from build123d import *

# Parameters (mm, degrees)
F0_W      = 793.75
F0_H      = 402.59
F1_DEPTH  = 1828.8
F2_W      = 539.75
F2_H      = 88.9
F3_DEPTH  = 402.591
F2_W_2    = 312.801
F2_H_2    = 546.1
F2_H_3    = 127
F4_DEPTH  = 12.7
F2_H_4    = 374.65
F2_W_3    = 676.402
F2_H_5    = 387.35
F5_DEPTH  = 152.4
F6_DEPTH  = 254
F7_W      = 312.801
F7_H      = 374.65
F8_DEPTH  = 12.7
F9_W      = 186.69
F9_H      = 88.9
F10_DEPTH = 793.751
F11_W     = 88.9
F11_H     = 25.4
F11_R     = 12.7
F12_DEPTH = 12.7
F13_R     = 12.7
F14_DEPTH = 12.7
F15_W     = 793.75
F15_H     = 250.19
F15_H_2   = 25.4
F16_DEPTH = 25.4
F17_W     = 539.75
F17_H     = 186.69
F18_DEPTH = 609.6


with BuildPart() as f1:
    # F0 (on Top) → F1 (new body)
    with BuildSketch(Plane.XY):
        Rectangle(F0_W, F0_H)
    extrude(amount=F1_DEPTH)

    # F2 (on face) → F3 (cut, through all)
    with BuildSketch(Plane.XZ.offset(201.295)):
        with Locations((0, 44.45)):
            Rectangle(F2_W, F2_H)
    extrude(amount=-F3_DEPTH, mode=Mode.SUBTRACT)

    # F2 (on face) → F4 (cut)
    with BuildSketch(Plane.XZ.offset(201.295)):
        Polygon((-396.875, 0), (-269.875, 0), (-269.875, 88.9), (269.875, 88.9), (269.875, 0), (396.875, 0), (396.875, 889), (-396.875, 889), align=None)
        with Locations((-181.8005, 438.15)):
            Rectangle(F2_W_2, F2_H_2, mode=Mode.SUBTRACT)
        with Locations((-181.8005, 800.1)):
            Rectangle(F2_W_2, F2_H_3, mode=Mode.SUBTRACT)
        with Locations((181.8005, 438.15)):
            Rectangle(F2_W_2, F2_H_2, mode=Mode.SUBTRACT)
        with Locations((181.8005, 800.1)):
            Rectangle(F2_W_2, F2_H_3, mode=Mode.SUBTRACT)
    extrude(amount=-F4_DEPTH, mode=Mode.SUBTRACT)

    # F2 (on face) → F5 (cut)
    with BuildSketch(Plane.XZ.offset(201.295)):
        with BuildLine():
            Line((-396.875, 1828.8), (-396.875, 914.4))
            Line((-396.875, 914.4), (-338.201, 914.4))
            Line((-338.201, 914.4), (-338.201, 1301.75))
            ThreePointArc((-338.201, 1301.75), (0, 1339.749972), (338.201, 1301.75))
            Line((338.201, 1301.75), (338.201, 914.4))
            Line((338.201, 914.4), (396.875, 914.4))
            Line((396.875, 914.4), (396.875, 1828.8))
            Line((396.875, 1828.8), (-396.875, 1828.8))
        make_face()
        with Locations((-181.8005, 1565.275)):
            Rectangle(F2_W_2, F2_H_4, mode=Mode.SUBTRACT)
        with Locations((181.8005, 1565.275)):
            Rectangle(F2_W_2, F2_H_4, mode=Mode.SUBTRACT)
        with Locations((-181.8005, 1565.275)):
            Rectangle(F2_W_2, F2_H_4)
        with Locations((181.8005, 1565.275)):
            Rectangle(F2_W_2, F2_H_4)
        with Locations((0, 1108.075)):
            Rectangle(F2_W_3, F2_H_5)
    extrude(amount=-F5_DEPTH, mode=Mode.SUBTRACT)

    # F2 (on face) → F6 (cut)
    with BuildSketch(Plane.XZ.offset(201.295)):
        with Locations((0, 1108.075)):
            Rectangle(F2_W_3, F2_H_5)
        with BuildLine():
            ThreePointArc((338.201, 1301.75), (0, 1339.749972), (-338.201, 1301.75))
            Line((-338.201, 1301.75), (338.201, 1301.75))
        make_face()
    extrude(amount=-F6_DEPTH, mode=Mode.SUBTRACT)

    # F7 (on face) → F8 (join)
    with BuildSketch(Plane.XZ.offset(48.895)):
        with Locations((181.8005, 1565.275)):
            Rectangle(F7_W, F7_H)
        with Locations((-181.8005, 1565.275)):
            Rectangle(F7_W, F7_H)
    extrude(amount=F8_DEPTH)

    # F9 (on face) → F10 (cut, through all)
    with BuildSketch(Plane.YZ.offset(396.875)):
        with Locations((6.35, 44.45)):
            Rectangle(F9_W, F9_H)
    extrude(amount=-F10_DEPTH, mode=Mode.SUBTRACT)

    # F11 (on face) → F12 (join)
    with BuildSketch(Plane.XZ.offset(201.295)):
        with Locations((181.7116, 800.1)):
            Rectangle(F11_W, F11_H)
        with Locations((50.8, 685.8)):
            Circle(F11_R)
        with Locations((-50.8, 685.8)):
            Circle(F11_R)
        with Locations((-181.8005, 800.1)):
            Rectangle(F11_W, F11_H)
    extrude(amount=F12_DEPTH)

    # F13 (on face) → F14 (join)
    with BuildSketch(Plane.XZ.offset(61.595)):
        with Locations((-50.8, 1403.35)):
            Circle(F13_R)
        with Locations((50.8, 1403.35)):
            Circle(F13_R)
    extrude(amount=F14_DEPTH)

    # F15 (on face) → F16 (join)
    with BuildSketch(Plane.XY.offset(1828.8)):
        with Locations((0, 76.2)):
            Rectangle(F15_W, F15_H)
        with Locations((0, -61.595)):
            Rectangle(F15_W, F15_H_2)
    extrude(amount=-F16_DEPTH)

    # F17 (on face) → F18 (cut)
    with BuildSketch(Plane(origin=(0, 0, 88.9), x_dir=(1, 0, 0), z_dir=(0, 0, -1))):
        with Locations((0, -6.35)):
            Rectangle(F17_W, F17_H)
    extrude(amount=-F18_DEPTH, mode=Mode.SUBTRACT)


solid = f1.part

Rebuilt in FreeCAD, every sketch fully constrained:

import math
import FreeCAD as App
import Part
import Sketcher
from FreeCAD import Vector
Q = App.Units.Quantity

doc = App.newDocument("Part")
body = doc.addObject("PartDesign::Body", "Body")

# Sketch on XY plane
sketch1 = body.newObject("Sketcher::SketchObject", "Sketch")
sketch1.AttachmentSupport = (doc.getObject("XY_Plane"), [""])
sketch1.MapMode = "FlatFace"
sketch1.addGeometry([
    Part.LineSegment(Vector(-397, 201, 0), Vector(-397, -201, 0)),
    Part.LineSegment(Vector(-397, -201, 0), Vector(397, -201, 0)),
    Part.LineSegment(Vector(397, -201, 0), Vector(397, 201, 0)),
    Part.LineSegment(Vector(397, 201, 0), Vector(-397, 201, 0)),
], False)
sketch1.addConstraint([
    Sketcher.Constraint("Coincident", 0, 2, 1, 1),
    Sketcher.Constraint("Coincident", 1, 2, 2, 1),
    Sketcher.Constraint("Coincident", 2, 2, 3, 1),
    Sketcher.Constraint("Coincident", 3, 2, 0, 1),
    Sketcher.Constraint("Vertical", 0),
    Sketcher.Constraint("Horizontal", 1),
    Sketcher.Constraint("Vertical", 2),
    Sketcher.Constraint("Horizontal", 3),
    Sketcher.Constraint("Symmetric", 0, 2, 2, 2, -1, 1),
    Sketcher.Constraint("DistanceX", 1, 1, 1, 2, Q("31.25 in")),
    Sketcher.Constraint("DistanceY", 0, 2, 0, 1, Q("15.85 in")),
])
pad1 = body.newObject("PartDesign::Pad", "Pad")
pad1.Profile = sketch1
pad1.Length = Q("72 in")

# Sketch on XZ plane
sketch2 = body.newObject("Sketcher::SketchObject", "Sketch001")
sketch2.AttachmentSupport = (doc.getObject("XZ_Plane"), [""])
sketch2.MapMode = "FlatFace"
sketch2.AttachmentOffset = App.Placement(Vector(0, 0, 7.925 * 25.4), App.Rotation())
sketch2.addGeometry([
    Part.LineSegment(Vector(-270, 89, 0), Vector(-270, 0, 0)),
    Part.LineSegment(Vector(-270, 0, 0), Vector(270, 0, 0)),
    Part.LineSegment(Vector(270, 0, 0), Vector(270, 89, 0)),
    Part.LineSegment(Vector(270, 89, 0), Vector(-270, 89, 0)),
], False)
sketch2.addConstraint([
    Sketcher.Constraint("Coincident", 0, 2, 1, 1),
    Sketcher.Constraint("Coincident", 1, 2, 2, 1),
    Sketcher.Constraint("Coincident", 2, 2, 3, 1),
    Sketcher.Constraint("Coincident", 3, 2, 0, 1),
    Sketcher.Constraint("Vertical", 0),
    Sketcher.Constraint("Horizontal", 1),
    Sketcher.Constraint("Vertical", 2),
    Sketcher.Constraint("Horizontal", 3),
    Sketcher.Constraint("Symmetric", 0, 2, 1, 2, -1, 1),
    Sketcher.Constraint("DistanceY", 0, 2, 0, 1, Q("3.5 in")),
    Sketcher.Constraint("DistanceX", 1, 1, 1, 2, Q("21.25 in")),
])
pocket1 = body.newObject("PartDesign::Pocket", "Pocket")
pocket1.Profile = sketch2
pocket1.Type = "ThroughAll"

# Sketch on XZ plane
sketch3 = body.newObject("Sketcher::SketchObject", "Sketch002")
sketch3.AttachmentSupport = (doc.getObject("XZ_Plane"), [""])
sketch3.MapMode = "FlatFace"
sketch3.AttachmentOffset = App.Placement(Vector(0, 0, 7.925 * 25.4), App.Rotation())
sketch3.addGeometry([
    Part.LineSegment(Vector(-397, 0, 0), Vector(-270, 0, 0)),  # 0
    Part.LineSegment(Vector(-270, 0, 0), Vector(-270, 89, 0)),  # 1
    Part.LineSegment(Vector(-270, 89, 0), Vector(270, 89, 0)),  # 2
    Part.LineSegment(Vector(270, 89, 0), Vector(270, 0, 0)),  # 3
    Part.LineSegment(Vector(270, 0, 0), Vector(397, 0, 0)),  # 4
    Part.LineSegment(Vector(397, 0, 0), Vector(397, 889, 0)),  # 5
    Part.LineSegment(Vector(397, 889, 0), Vector(-397, 889, 0)),  # 6
    Part.LineSegment(Vector(-397, 889, 0), Vector(-397, 0, 0)),  # 7
    Part.LineSegment(Vector(-25, 165, 0), Vector(-338, 165, 0)),  # 8
    Part.LineSegment(Vector(-338, 165, 0), Vector(-338, 711, 0)),  # 9
    Part.LineSegment(Vector(-338, 711, 0), Vector(-25, 711, 0)),  # 10
    Part.LineSegment(Vector(-25, 711, 0), Vector(-25, 165, 0)),  # 11
    Part.LineSegment(Vector(338, 165, 0), Vector(25, 165, 0)),  # 12
    Part.LineSegment(Vector(25, 165, 0), Vector(25, 711, 0)),  # 13
    Part.LineSegment(Vector(25, 711, 0), Vector(338, 711, 0)),  # 14
    Part.LineSegment(Vector(338, 711, 0), Vector(338, 165, 0)),  # 15
    Part.LineSegment(Vector(-25, 737, 0), Vector(-338, 737, 0)),  # 16
    Part.LineSegment(Vector(-338, 737, 0), Vector(-338, 864, 0)),  # 17
    Part.LineSegment(Vector(-338, 864, 0), Vector(-25, 864, 0)),  # 18
    Part.LineSegment(Vector(-25, 864, 0), Vector(-25, 737, 0)),  # 19
    Part.LineSegment(Vector(338, 737, 0), Vector(25, 737, 0)),  # 20
    Part.LineSegment(Vector(25, 737, 0), Vector(25, 864, 0)),  # 21
    Part.LineSegment(Vector(25, 864, 0), Vector(338, 864, 0)),  # 22
    Part.LineSegment(Vector(338, 864, 0), Vector(338, 737, 0)),  # 23
], False)
sketch3.addConstraint([
    Sketcher.Constraint("Coincident", 0, 2, 1, 1),
    Sketcher.Constraint("Coincident", 1, 2, 2, 1),
    Sketcher.Constraint("Coincident", 2, 2, 3, 1),
    Sketcher.Constraint("Coincident", 3, 2, 4, 1),
    Sketcher.Constraint("Coincident", 4, 2, 5, 1),
    Sketcher.Constraint("Coincident", 5, 2, 6, 1),
    Sketcher.Constraint("Coincident", 6, 2, 7, 1),
    Sketcher.Constraint("Coincident", 7, 2, 0, 1),
    Sketcher.Constraint("Coincident", 8, 2, 9, 1),
    Sketcher.Constraint("Coincident", 9, 2, 10, 1),
    Sketcher.Constraint("Coincident", 10, 2, 11, 1),
    Sketcher.Constraint("Coincident", 11, 2, 8, 1),
    Sketcher.Constraint("Coincident", 12, 2, 13, 1),
    Sketcher.Constraint("Coincident", 13, 2, 14, 1),
    Sketcher.Constraint("Coincident", 14, 2, 15, 1),
    Sketcher.Constraint("Coincident", 15, 2, 12, 1),
    Sketcher.Constraint("Coincident", 16, 2, 17, 1),
    Sketcher.Constraint("Coincident", 17, 2, 18, 1),
    Sketcher.Constraint("Coincident", 18, 2, 19, 1),
    Sketcher.Constraint("Coincident", 19, 2, 16, 1),
    Sketcher.Constraint("Coincident", 20, 2, 21, 1),
    Sketcher.Constraint("Coincident", 21, 2, 22, 1),
    Sketcher.Constraint("Coincident", 22, 2, 23, 1),
    Sketcher.Constraint("Coincident", 23, 2, 20, 1),
    Sketcher.Constraint("Horizontal", 0),
    Sketcher.Constraint("Vertical", 1),
    Sketcher.Constraint("Horizontal", 2),
    Sketcher.Constraint("Vertical", 3),
    Sketcher.Constraint("Horizontal", 4),
    Sketcher.Constraint("Vertical", 5),
    Sketcher.Constraint("Horizontal", 6),
    Sketcher.Constraint("Vertical", 7),
    Sketcher.Constraint("Horizontal", 8),
    Sketcher.Constraint("Vertical", 9),
    Sketcher.Constraint("Horizontal", 10),
    Sketcher.Constraint("Vertical", 11),
    Sketcher.Constraint("Horizontal", 12),
    Sketcher.Constraint("Vertical", 13),
    Sketcher.Constraint("Horizontal", 14),
    Sketcher.Constraint("Vertical", 15),
    Sketcher.Constraint("Horizontal", 16),
    Sketcher.Constraint("Vertical", 17),
    Sketcher.Constraint("Horizontal", 18),
    Sketcher.Constraint("Vertical", 19),
    Sketcher.Constraint("Horizontal", 20),
    Sketcher.Constraint("Vertical", 21),
    Sketcher.Constraint("Horizontal", 22),
    Sketcher.Constraint("Vertical", 23),
    Sketcher.Constraint("Symmetric", 0, 2, 3, 2, -1, 1),
    Sketcher.Constraint("Symmetric", 4, 2, 7, 2, -2),
    Sketcher.Constraint("Symmetric", 11, 2, 12, 2, -2),
    Sketcher.Constraint("Symmetric", 9, 2, 14, 2, -2),
    Sketcher.Constraint("Symmetric", 19, 2, 20, 2, -2),
    Sketcher.Constraint("Symmetric", 17, 2, 22, 2, -2),
    Sketcher.Constraint("Vertical", 9, 2, 16, 2),
    Sketcher.Constraint("Vertical", 11, 2, 18, 2),
    Sketcher.Constraint("Equal", 4, 17),
    Sketcher.Constraint("DistanceX", 0, 1, 0, 2, Q("5 in")),
    Sketcher.Constraint("DistanceY", 5, 1, 5, 2, Q("35 in")),
    Sketcher.Constraint("DistanceY", 1, 1, 1, 2, Q("3.5 in")),
    Sketcher.Constraint("DistanceY", 9, 1, 9, 2, Q("21.5 in")),
    Sketcher.Constraint("DistanceY", -1, 1, 9, 2, Q("28 in")),
    Sketcher.Constraint("DistanceX", 10, 2, -1, 1, Q("1 in")),
    Sketcher.Constraint("DistanceY", -1, 1, 16, 2, Q("29 in")),
    Sketcher.Constraint("DistanceX", 2, 1, 2, 2, Q("21.25 in")),
    Sketcher.Constraint("DistanceX", 8, 2, 8, 1, Q("12.315 in")),
])
pocket2 = body.newObject("PartDesign::Pocket", "Pocket001")
pocket2.Profile = sketch3
pocket2.Length = Q("0.5 in")

# Sketch on XZ plane
sketch4 = body.newObject("Sketcher::SketchObject", "Sketch003")
sketch4.AttachmentSupport = (doc.getObject("XZ_Plane"), [""])
sketch4.MapMode = "FlatFace"
sketch4.AttachmentOffset = App.Placement(Vector(0, 0, 7.925 * 25.4), App.Rotation())
sketch4.addGeometry([
    Part.LineSegment(Vector(-397, 1829, 0), Vector(-397, 914, 0)),  # 0
    Part.LineSegment(Vector(-397, 914, 0), Vector(397, 914, 0)),  # 1
    Part.LineSegment(Vector(397, 914, 0), Vector(397, 1829, 0)),  # 2
    Part.LineSegment(Vector(397, 1829, 0), Vector(-397, 1829, 0)),  # 3
    Part.ArcOfCircle(Part.Circle(Vector(0, -184, 0), Vector(0, 0, 1), 1524), math.radians(77), math.radians(103)),  # 4
    Part.LineSegment(Vector(338, 1302, 0), Vector(-338, 1302, 0)),  # 5
], False)
sketch4.addConstraint([
    Sketcher.Constraint("Coincident", 0, 2, 1, 1),
    Sketcher.Constraint("Coincident", 1, 2, 2, 1),
    Sketcher.Constraint("Coincident", 2, 2, 3, 1),
    Sketcher.Constraint("Coincident", 3, 2, 0, 1),
    Sketcher.Constraint("Coincident", 4, 1, 5, 1),
    Sketcher.Constraint("Coincident", 5, 2, 4, 2),
    Sketcher.Constraint("Vertical", 0),
    Sketcher.Constraint("Horizontal", 1),
    Sketcher.Constraint("Vertical", 2),
    Sketcher.Constraint("Horizontal", 3),
    Sketcher.Constraint("Horizontal", 5),
    Sketcher.Constraint("PointOnObject", 4, 3, -2),
    Sketcher.Constraint("Radius", 4, Q("59.9999998 in")),
    Sketcher.Constraint("DistanceY", 0, 2, 0, 1, Q("36 in")),
    Sketcher.Constraint("DistanceY", -1, 1, 0, 2, Q("36 in")),
    Sketcher.Constraint("DistanceX", 1, 1, 1, 2, Q("31.25 in")),
    Sketcher.Constraint("DistanceX", 5, 2, 5, 1, Q("26.63 in")),
    Sketcher.Constraint("DistanceY", -1, 1, 5, 2, Q("51.25 in")),
    Sketcher.Constraint("DistanceX", 0, 2, 5, 2, Q("2.31 in")),
])
pocket3 = body.newObject("PartDesign::Pocket", "Pocket002")
pocket3.Profile = sketch4
pocket3.Length = Q("6 in")

# Sketch on XZ plane
sketch5 = body.newObject("Sketcher::SketchObject", "Sketch004")
sketch5.AttachmentSupport = (doc.getObject("XZ_Plane"), [""])
sketch5.MapMode = "FlatFace"
sketch5.AttachmentOffset = App.Placement(Vector(0, 0, 7.925 * 25.4), App.Rotation())
sketch5.addGeometry([
    Part.LineSegment(Vector(-338, 1302, 0), Vector(-338, 914, 0)),
    Part.LineSegment(Vector(-338, 914, 0), Vector(338, 914, 0)),
    Part.LineSegment(Vector(338, 914, 0), Vector(338, 1302, 0)),
    Part.ArcOfCircle(Part.Circle(Vector(0, -184, 0), Vector(0, 0, 1), 1524), math.radians(77), math.radians(103)),
], False)
sketch5.addConstraint([
    Sketcher.Constraint("Coincident", 0, 2, 1, 1),
    Sketcher.Constraint("Coincident", 1, 2, 2, 1),
    Sketcher.Constraint("Coincident", 2, 2, 3, 1),
    Sketcher.Constraint("Coincident", 3, 2, 0, 1),
    Sketcher.Constraint("Vertical", 0),
    Sketcher.Constraint("Horizontal", 1),
    Sketcher.Constraint("Vertical", 2),
    Sketcher.Constraint("PointOnObject", 3, 3, -2),
    Sketcher.Constraint("Equal", 0, 2),
    Sketcher.Constraint("Radius", 3, Q("59.9999998 in")),
    Sketcher.Constraint("DistanceY", -1, 1, 0, 2, Q("36 in")),
    Sketcher.Constraint("DistanceX", 1, 1, 1, 2, Q("26.63 in")),
    Sketcher.Constraint("DistanceY", 0, 2, 0, 1, Q("15.25 in")),
])
pocket4 = body.newObject("PartDesign::Pocket", "Pocket003")
pocket4.Profile = sketch5
pocket4.Length = Q("10 in")

# Sketch on XZ plane
sketch6 = body.newObject("Sketcher::SketchObject", "Sketch005")
sketch6.AttachmentSupport = (doc.getObject("XZ_Plane"), [""])
sketch6.MapMode = "FlatFace"
sketch6.AttachmentOffset = App.Placement(Vector(0, 0, 1.925 * 25.4), App.Rotation())
sketch6.addGeometry([
    Part.LineSegment(Vector(25, 1753, 0), Vector(25, 1378, 0)),  # 0
    Part.LineSegment(Vector(25, 1378, 0), Vector(338, 1378, 0)),  # 1
    Part.LineSegment(Vector(338, 1378, 0), Vector(338, 1753, 0)),  # 2
    Part.LineSegment(Vector(338, 1753, 0), Vector(25, 1753, 0)),  # 3
    Part.LineSegment(Vector(-338, 1753, 0), Vector(-338, 1378, 0)),  # 4
    Part.LineSegment(Vector(-338, 1378, 0), Vector(-25, 1378, 0)),  # 5
    Part.LineSegment(Vector(-25, 1378, 0), Vector(-25, 1753, 0)),  # 6
    Part.LineSegment(Vector(-25, 1753, 0), Vector(-338, 1753, 0)),  # 7
], False)
sketch6.addConstraint([
    Sketcher.Constraint("Coincident", 0, 2, 1, 1),
    Sketcher.Constraint("Coincident", 1, 2, 2, 1),
    Sketcher.Constraint("Coincident", 2, 2, 3, 1),
    Sketcher.Constraint("Coincident", 3, 2, 0, 1),
    Sketcher.Constraint("Coincident", 4, 2, 5, 1),
    Sketcher.Constraint("Coincident", 5, 2, 6, 1),
    Sketcher.Constraint("Coincident", 6, 2, 7, 1),
    Sketcher.Constraint("Coincident", 7, 2, 4, 1),
    Sketcher.Constraint("Vertical", 0),
    Sketcher.Constraint("Horizontal", 1),
    Sketcher.Constraint("Vertical", 2),
    Sketcher.Constraint("Horizontal", 3),
    Sketcher.Constraint("Vertical", 4),
    Sketcher.Constraint("Horizontal", 5),
    Sketcher.Constraint("Vertical", 6),
    Sketcher.Constraint("Horizontal", 7),
    Sketcher.Constraint("Symmetric", 1, 2, 4, 2, -2),
    Sketcher.Constraint("Symmetric", 3, 2, 6, 2, -2),
    Sketcher.Constraint("DistanceX", -1, 1, 0, 2, Q("1 in")),
    Sketcher.Constraint("DistanceY", -1, 1, 2, 2, Q("69 in")),
    Sketcher.Constraint("DistanceY", 0, 2, 0, 1, Q("14.75 in")),
    Sketcher.Constraint("DistanceX", 1, 1, 1, 2, Q("12.315 in")),
])
pad2 = body.newObject("PartDesign::Pad", "Pad001")
pad2.Profile = sketch6
pad2.Length = Q("0.5 in")

# Sketch on YZ plane
sketch7 = body.newObject("Sketcher::SketchObject", "Sketch006")
sketch7.AttachmentSupport = (doc.getObject("YZ_Plane"), [""])
sketch7.MapMode = "FlatFace"
sketch7.AttachmentOffset = App.Placement(Vector(0, 0, 15.625 * 25.4), App.Rotation())
sketch7.addGeometry([
    Part.LineSegment(Vector(-87, 89, 0), Vector(-87, 0, 0)),
    Part.LineSegment(Vector(-87, 0, 0), Vector(100, 0, 0)),
    Part.LineSegment(Vector(100, 0, 0), Vector(100, 89, 0)),
    Part.LineSegment(Vector(100, 89, 0), Vector(-87, 89, 0)),
], False)
sketch7.addConstraint([
    Sketcher.Constraint("Coincident", 0, 2, 1, 1),
    Sketcher.Constraint("Coincident", 1, 2, 2, 1),
    Sketcher.Constraint("Coincident", 2, 2, 3, 1),
    Sketcher.Constraint("Coincident", 3, 2, 0, 1),
    Sketcher.Constraint("Vertical", 0),
    Sketcher.Constraint("Horizontal", 1),
    Sketcher.Constraint("Vertical", 2),
    Sketcher.Constraint("Horizontal", 3),
    Sketcher.Constraint("PointOnObject", 0, 2, -1),
    Sketcher.Constraint("DistanceY", 0, 2, 0, 1, Q("3.5 in")),
    Sketcher.Constraint("DistanceX", 1, 1, 1, 2, Q("7.35 in")),
    Sketcher.Constraint("DistanceX", 0, 2, -1, 1, Q("3.425 in")),
])
pocket5 = body.newObject("PartDesign::Pocket", "Pocket004")
pocket5.Profile = sketch7
pocket5.Type = "ThroughAll"

# Sketch on XZ plane
sketch8 = body.newObject("Sketcher::SketchObject", "Sketch007")
sketch8.AttachmentSupport = (doc.getObject("XZ_Plane"), [""])
sketch8.MapMode = "FlatFace"
sketch8.AttachmentOffset = App.Placement(Vector(0, 0, 7.925 * 25.4), App.Rotation())
sketch8.addGeometry([
    Part.LineSegment(Vector(137, 813, 0), Vector(137, 787, 0)),  # 0
    Part.LineSegment(Vector(137, 787, 0), Vector(226, 787, 0)),  # 1
    Part.LineSegment(Vector(226, 787, 0), Vector(226, 813, 0)),  # 2
    Part.LineSegment(Vector(226, 813, 0), Vector(137, 813, 0)),  # 3
    Part.Circle(Vector(51, 686, 0), Vector(0, 0, 1), 13),  # 4
    Part.Circle(Vector(-51, 686, 0), Vector(0, 0, 1), 13),  # 5
    Part.LineSegment(Vector(-226, 813, 0), Vector(-226, 787, 0)),  # 6
    Part.LineSegment(Vector(-226, 787, 0), Vector(-137, 787, 0)),  # 7
    Part.LineSegment(Vector(-137, 787, 0), Vector(-137, 813, 0)),  # 8
    Part.LineSegment(Vector(-137, 813, 0), Vector(-226, 813, 0)),  # 9
], False)
sketch8.addConstraint([
    Sketcher.Constraint("Coincident", 0, 2, 1, 1),
    Sketcher.Constraint("Coincident", 1, 2, 2, 1),
    Sketcher.Constraint("Coincident", 2, 2, 3, 1),
    Sketcher.Constraint("Coincident", 3, 2, 0, 1),
    Sketcher.Constraint("Coincident", 6, 2, 7, 1),
    Sketcher.Constraint("Coincident", 7, 2, 8, 1),
    Sketcher.Constraint("Coincident", 8, 2, 9, 1),
    Sketcher.Constraint("Coincident", 9, 2, 6, 1),
    Sketcher.Constraint("Vertical", 0),
    Sketcher.Constraint("Horizontal", 1),
    Sketcher.Constraint("Vertical", 2),
    Sketcher.Constraint("Horizontal", 3),
    Sketcher.Constraint("Vertical", 6),
    Sketcher.Constraint("Horizontal", 7),
    Sketcher.Constraint("Vertical", 8),
    Sketcher.Constraint("Horizontal", 9),
    Sketcher.Constraint("Equal", 4, 5),
    Sketcher.Constraint("Symmetric", 4, 3, 5, 3, -2),
    Sketcher.Constraint("Horizontal", 1, 2, 6, 2),
    Sketcher.Constraint("Horizontal", 3, 2, 8, 2),
    Sketcher.Constraint("Equal", 3, 7),
    Sketcher.Constraint("Diameter", 4, Q("1 in")),
    Sketcher.Constraint("DistanceY", 0, 2, 0, 1, Q("1 in")),
    Sketcher.Constraint("DistanceX", 1, 1, 1, 2, Q("3.5 in")),
    Sketcher.Constraint("DistanceX", -1, 1, 4, 3, Q("2 in")),
    Sketcher.Constraint("DistanceY", -1, 1, 4, 3, Q("27 in")),
    Sketcher.Constraint("DistanceY", -1, 1, 0, 2, Q("31 in")),
    Sketcher.Constraint("DistanceX", -1, 1, 0, 2, Q("5.404 in")),
    Sketcher.Constraint("DistanceX", 6, 2, -1, 1, Q("8.9075 in")),
])
pad3 = body.newObject("PartDesign::Pad", "Pad002")
pad3.Profile = sketch8
pad3.Length = Q("0.5 in")

# Sketch on XZ plane
sketch9 = body.newObject("Sketcher::SketchObject", "Sketch008")
sketch9.AttachmentSupport = (doc.getObject("XZ_Plane"), [""])
sketch9.MapMode = "FlatFace"
sketch9.AttachmentOffset = App.Placement(Vector(0, 0, 2.425 * 25.4), App.Rotation())
sketch9.addGeometry([
    Part.Circle(Vector(-51, 1403, 0), Vector(0, 0, 1), 13),
    Part.Circle(Vector(51, 1403, 0), Vector(0, 0, 1), 13),
], False)
sketch9.addConstraint([
    Sketcher.Constraint("Equal", 0, 1),
    Sketcher.Constraint("Symmetric", 0, 3, 1, 3, -2),
    Sketcher.Constraint("Diameter", 0, Q("1 in")),
    Sketcher.Constraint("DistanceX", 0, 3, -1, 1, Q("2 in")),
    Sketcher.Constraint("DistanceY", -1, 1, 0, 3, Q("55.25 in")),
])
pad4 = body.newObject("PartDesign::Pad", "Pad003")
pad4.Profile = sketch9
pad4.Length = Q("0.5 in")

# Sketch on XY plane
sketch10 = body.newObject("Sketcher::SketchObject", "Sketch009")
sketch10.AttachmentSupport = (doc.getObject("XY_Plane"), [""])
sketch10.MapMode = "FlatFace"
sketch10.AttachmentOffset = App.Placement(Vector(0, 0, 72 * 25.4), App.Rotation())
sketch10.addGeometry([
    Part.LineSegment(Vector(-397, 201, 0), Vector(-397, -74, 0)),
    Part.LineSegment(Vector(-397, -74, 0), Vector(397, -74, 0)),
    Part.LineSegment(Vector(397, -74, 0), Vector(397, 201, 0)),
    Part.LineSegment(Vector(397, 201, 0), Vector(-397, 201, 0)),
], False)
sketch10.addConstraint([
    Sketcher.Constraint("Coincident", 0, 2, 1, 1),
    Sketcher.Constraint("Coincident", 1, 2, 2, 1),
    Sketcher.Constraint("Coincident", 2, 2, 3, 1),
    Sketcher.Constraint("Coincident", 3, 2, 0, 1),
    Sketcher.Constraint("Vertical", 0),
    Sketcher.Constraint("Horizontal", 1),
    Sketcher.Constraint("Vertical", 2),
    Sketcher.Constraint("Horizontal", 3),
    Sketcher.Constraint("DistanceX", 1, 1, 1, 2, Q("31.25 in")),
    Sketcher.Constraint("DistanceY", 0, 2, 0, 1, Q("10.85 in")),
    Sketcher.Constraint("DistanceX", 0, 2, -1, 1, Q("15.625 in")),
    Sketcher.Constraint("DistanceY", 0, 2, -1, 1, Q("2.925 in")),
])
pad5 = body.newObject("PartDesign::Pad", "Pad004")
pad5.Profile = sketch10
pad5.Length = Q("1 in")
pad5.Reversed = True

# Sketch on XY plane
sketch11 = body.newObject("Sketcher::SketchObject", "Sketch010")
sketch11.AttachmentSupport = (doc.getObject("XY_Plane"), [""])
sketch11.MapMode = "FlatFace"
sketch11.AttachmentOffset = App.Placement(Vector(0, 0, 3.5 * 25.4), App.Rotation())
sketch11.addGeometry([
    Part.LineSegment(Vector(-270, -87, 0), Vector(-270, 100, 0)),
    Part.LineSegment(Vector(-270, 100, 0), Vector(270, 100, 0)),
    Part.LineSegment(Vector(270, 100, 0), Vector(270, -87, 0)),
    Part.LineSegment(Vector(270, -87, 0), Vector(-270, -87, 0)),
], False)
sketch11.addConstraint([
    Sketcher.Constraint("Coincident", 0, 2, 1, 1),
    Sketcher.Constraint("Coincident", 1, 2, 2, 1),
    Sketcher.Constraint("Coincident", 2, 2, 3, 1),
    Sketcher.Constraint("Coincident", 3, 2, 0, 1),
    Sketcher.Constraint("Vertical", 0),
    Sketcher.Constraint("Horizontal", 1),
    Sketcher.Constraint("Vertical", 2),
    Sketcher.Constraint("Horizontal", 3),
    Sketcher.Constraint("DistanceX", 1, 1, 1, 2, Q("21.25 in")),
    Sketcher.Constraint("DistanceY", 0, 1, 0, 2, Q("7.35 in")),
    Sketcher.Constraint("DistanceX", 0, 2, -1, 1, Q("10.625 in")),
    Sketcher.Constraint("DistanceY", -1, 1, 0, 2, Q("3.925 in")),
])
pocket6 = body.newObject("PartDesign::Pocket", "Pocket005")
pocket6.Profile = sketch11
pocket6.Length = Q("24 in")
pocket6.Reversed = True

doc.recompute()
